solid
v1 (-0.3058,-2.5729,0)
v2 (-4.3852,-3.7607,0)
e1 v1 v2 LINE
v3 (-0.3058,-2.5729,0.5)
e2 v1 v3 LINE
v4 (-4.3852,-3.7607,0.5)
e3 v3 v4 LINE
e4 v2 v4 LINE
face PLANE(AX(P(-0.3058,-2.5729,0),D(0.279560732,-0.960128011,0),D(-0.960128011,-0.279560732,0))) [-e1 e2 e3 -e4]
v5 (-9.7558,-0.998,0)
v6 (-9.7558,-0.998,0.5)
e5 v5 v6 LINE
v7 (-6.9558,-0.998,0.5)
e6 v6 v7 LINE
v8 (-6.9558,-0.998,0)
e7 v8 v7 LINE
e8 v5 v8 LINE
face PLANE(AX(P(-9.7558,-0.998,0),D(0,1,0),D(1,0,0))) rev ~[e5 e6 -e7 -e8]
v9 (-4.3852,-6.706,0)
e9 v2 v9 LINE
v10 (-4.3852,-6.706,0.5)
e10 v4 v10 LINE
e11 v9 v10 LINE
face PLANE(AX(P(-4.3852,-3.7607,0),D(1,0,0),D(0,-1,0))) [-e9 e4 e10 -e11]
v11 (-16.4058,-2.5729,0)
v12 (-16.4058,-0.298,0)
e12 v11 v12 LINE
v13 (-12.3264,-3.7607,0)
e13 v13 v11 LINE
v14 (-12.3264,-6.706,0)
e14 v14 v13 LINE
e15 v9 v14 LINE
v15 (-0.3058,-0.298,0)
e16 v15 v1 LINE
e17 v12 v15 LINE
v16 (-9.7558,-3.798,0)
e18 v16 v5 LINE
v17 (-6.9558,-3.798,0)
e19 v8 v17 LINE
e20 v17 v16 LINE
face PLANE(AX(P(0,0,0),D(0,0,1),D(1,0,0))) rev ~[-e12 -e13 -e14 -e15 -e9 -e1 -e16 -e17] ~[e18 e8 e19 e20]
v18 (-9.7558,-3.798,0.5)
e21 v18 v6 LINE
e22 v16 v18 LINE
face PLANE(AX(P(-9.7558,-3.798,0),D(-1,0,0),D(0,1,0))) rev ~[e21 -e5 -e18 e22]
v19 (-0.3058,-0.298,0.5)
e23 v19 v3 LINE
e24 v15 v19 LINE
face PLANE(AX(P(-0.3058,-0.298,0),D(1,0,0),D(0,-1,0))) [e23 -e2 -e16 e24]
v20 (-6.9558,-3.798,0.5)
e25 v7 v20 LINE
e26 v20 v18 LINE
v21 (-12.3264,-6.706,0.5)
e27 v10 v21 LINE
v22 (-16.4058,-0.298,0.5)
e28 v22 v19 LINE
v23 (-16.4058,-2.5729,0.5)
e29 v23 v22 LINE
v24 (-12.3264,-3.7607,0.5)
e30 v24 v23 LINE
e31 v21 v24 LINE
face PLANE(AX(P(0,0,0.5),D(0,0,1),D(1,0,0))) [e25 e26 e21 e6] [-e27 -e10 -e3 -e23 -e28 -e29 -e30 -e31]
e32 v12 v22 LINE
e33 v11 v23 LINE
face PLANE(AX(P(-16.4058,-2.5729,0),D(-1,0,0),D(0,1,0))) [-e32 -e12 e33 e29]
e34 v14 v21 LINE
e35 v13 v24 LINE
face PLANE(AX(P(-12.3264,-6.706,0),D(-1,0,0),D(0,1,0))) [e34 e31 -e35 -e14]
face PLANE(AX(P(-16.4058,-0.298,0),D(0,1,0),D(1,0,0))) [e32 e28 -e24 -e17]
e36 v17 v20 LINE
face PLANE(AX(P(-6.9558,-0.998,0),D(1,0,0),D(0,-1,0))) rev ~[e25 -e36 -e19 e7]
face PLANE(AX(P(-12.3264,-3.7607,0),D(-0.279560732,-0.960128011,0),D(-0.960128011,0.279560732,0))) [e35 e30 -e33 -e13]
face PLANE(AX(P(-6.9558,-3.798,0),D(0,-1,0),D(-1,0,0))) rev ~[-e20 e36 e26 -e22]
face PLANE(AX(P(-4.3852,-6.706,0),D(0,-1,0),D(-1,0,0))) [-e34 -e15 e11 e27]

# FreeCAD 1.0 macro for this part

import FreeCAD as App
import Part
import Sketcher
from FreeCAD import Vector


def add_polygon(sketch, points):
    """Adds a closed chain of lines whose ends are joined by coincident constraints."""
    first, n = sketch.GeometryCount, len(points)
    for a, b in zip(points, points[1:] + points[:1]):
        sketch.addGeometry(Part.LineSegment(App.Vector(*a, 0), App.Vector(*b, 0)), False)
    for i in range(n):
        sketch.addConstraint(Sketcher.Constraint("Coincident", first + i, 2, first + (i + 1) % n, 1))

doc = App.newDocument("Part")
body = doc.addObject("PartDesign::Body", "Body")

# Sketch on XY plane
sketch1 = body.newObject("Sketcher::SketchObject", "Sketch")
sketch1.AttachmentSupport = (doc.getObject("XY_Plane"), [""])
sketch1.MapMode = "FlatFace"
add_polygon(sketch1, [(-0.3, -0.3), (-16.4, -0.3), (-16.4, -2.6), (-12.3, -3.8), (-12.3, -6.7), (-4.4, -6.7), (-4.4, -3.8), (-0.3, -2.6)])  # lines 0-7
add_polygon(sketch1, [(-9.8, -3.8), (-9.8, -1), (-7, -1), (-7, -3.8)])  # lines 8-11
sketch1.addConstraint([
    Sketcher.Constraint("Horizontal", 0),
    Sketcher.Constraint("Vertical", 1),
    Sketcher.Constraint("Vertical", 3),
    Sketcher.Constraint("Horizontal", 4),
    Sketcher.Constraint("Vertical", 5),
    Sketcher.Constraint("Vertical", 7),
    Sketcher.Constraint("Vertical", 8),
    Sketcher.Constraint("Horizontal", 9),
    Sketcher.Constraint("Vertical", 10),
    Sketcher.Constraint("Horizontal", 11),
    Sketcher.Constraint("Horizontal", 2, 2, 5, 2),
    Sketcher.Constraint("Horizontal", 1, 2, 6, 2),
    Sketcher.Constraint("Equal", 11, 8),
    Sketcher.Constraint("Equal", 2, 6),
    Sketcher.Constraint("DistanceX", 9, 1, 9, 2, 2.8),
    Sketcher.Constraint("DistanceX", 0, 2, 0, 1, 16.1),
    Sketcher.Constraint("DistanceY", 8, 2, 0, 2, 0.7),
    Sketcher.Constraint("DistanceY", 1, 2, 1, 1, 2.275),
    Sketcher.Constraint("DistanceX", 0, 2, 8, 2, 6.65),
    Sketcher.Constraint("DistanceX", 4, 1, 4, 2, 7.9412),
    Sketcher.Constraint("DistanceY", 3, 2, 3, 1, 2.9453),
    Sketcher.Constraint("DistanceY", 0, 2, -1, 1, 0.298),
    Sketcher.Constraint("DistanceY", 3, 2, -1, 1, 6.706),
    Sketcher.Constraint("DistanceX", 0, 2, -1, 1, 16.4058),
])
pad1 = body.newObject("PartDesign::Pad", "Pad")
pad1.Profile = sketch1
pad1.Length = 0.5

doc.recompute()
